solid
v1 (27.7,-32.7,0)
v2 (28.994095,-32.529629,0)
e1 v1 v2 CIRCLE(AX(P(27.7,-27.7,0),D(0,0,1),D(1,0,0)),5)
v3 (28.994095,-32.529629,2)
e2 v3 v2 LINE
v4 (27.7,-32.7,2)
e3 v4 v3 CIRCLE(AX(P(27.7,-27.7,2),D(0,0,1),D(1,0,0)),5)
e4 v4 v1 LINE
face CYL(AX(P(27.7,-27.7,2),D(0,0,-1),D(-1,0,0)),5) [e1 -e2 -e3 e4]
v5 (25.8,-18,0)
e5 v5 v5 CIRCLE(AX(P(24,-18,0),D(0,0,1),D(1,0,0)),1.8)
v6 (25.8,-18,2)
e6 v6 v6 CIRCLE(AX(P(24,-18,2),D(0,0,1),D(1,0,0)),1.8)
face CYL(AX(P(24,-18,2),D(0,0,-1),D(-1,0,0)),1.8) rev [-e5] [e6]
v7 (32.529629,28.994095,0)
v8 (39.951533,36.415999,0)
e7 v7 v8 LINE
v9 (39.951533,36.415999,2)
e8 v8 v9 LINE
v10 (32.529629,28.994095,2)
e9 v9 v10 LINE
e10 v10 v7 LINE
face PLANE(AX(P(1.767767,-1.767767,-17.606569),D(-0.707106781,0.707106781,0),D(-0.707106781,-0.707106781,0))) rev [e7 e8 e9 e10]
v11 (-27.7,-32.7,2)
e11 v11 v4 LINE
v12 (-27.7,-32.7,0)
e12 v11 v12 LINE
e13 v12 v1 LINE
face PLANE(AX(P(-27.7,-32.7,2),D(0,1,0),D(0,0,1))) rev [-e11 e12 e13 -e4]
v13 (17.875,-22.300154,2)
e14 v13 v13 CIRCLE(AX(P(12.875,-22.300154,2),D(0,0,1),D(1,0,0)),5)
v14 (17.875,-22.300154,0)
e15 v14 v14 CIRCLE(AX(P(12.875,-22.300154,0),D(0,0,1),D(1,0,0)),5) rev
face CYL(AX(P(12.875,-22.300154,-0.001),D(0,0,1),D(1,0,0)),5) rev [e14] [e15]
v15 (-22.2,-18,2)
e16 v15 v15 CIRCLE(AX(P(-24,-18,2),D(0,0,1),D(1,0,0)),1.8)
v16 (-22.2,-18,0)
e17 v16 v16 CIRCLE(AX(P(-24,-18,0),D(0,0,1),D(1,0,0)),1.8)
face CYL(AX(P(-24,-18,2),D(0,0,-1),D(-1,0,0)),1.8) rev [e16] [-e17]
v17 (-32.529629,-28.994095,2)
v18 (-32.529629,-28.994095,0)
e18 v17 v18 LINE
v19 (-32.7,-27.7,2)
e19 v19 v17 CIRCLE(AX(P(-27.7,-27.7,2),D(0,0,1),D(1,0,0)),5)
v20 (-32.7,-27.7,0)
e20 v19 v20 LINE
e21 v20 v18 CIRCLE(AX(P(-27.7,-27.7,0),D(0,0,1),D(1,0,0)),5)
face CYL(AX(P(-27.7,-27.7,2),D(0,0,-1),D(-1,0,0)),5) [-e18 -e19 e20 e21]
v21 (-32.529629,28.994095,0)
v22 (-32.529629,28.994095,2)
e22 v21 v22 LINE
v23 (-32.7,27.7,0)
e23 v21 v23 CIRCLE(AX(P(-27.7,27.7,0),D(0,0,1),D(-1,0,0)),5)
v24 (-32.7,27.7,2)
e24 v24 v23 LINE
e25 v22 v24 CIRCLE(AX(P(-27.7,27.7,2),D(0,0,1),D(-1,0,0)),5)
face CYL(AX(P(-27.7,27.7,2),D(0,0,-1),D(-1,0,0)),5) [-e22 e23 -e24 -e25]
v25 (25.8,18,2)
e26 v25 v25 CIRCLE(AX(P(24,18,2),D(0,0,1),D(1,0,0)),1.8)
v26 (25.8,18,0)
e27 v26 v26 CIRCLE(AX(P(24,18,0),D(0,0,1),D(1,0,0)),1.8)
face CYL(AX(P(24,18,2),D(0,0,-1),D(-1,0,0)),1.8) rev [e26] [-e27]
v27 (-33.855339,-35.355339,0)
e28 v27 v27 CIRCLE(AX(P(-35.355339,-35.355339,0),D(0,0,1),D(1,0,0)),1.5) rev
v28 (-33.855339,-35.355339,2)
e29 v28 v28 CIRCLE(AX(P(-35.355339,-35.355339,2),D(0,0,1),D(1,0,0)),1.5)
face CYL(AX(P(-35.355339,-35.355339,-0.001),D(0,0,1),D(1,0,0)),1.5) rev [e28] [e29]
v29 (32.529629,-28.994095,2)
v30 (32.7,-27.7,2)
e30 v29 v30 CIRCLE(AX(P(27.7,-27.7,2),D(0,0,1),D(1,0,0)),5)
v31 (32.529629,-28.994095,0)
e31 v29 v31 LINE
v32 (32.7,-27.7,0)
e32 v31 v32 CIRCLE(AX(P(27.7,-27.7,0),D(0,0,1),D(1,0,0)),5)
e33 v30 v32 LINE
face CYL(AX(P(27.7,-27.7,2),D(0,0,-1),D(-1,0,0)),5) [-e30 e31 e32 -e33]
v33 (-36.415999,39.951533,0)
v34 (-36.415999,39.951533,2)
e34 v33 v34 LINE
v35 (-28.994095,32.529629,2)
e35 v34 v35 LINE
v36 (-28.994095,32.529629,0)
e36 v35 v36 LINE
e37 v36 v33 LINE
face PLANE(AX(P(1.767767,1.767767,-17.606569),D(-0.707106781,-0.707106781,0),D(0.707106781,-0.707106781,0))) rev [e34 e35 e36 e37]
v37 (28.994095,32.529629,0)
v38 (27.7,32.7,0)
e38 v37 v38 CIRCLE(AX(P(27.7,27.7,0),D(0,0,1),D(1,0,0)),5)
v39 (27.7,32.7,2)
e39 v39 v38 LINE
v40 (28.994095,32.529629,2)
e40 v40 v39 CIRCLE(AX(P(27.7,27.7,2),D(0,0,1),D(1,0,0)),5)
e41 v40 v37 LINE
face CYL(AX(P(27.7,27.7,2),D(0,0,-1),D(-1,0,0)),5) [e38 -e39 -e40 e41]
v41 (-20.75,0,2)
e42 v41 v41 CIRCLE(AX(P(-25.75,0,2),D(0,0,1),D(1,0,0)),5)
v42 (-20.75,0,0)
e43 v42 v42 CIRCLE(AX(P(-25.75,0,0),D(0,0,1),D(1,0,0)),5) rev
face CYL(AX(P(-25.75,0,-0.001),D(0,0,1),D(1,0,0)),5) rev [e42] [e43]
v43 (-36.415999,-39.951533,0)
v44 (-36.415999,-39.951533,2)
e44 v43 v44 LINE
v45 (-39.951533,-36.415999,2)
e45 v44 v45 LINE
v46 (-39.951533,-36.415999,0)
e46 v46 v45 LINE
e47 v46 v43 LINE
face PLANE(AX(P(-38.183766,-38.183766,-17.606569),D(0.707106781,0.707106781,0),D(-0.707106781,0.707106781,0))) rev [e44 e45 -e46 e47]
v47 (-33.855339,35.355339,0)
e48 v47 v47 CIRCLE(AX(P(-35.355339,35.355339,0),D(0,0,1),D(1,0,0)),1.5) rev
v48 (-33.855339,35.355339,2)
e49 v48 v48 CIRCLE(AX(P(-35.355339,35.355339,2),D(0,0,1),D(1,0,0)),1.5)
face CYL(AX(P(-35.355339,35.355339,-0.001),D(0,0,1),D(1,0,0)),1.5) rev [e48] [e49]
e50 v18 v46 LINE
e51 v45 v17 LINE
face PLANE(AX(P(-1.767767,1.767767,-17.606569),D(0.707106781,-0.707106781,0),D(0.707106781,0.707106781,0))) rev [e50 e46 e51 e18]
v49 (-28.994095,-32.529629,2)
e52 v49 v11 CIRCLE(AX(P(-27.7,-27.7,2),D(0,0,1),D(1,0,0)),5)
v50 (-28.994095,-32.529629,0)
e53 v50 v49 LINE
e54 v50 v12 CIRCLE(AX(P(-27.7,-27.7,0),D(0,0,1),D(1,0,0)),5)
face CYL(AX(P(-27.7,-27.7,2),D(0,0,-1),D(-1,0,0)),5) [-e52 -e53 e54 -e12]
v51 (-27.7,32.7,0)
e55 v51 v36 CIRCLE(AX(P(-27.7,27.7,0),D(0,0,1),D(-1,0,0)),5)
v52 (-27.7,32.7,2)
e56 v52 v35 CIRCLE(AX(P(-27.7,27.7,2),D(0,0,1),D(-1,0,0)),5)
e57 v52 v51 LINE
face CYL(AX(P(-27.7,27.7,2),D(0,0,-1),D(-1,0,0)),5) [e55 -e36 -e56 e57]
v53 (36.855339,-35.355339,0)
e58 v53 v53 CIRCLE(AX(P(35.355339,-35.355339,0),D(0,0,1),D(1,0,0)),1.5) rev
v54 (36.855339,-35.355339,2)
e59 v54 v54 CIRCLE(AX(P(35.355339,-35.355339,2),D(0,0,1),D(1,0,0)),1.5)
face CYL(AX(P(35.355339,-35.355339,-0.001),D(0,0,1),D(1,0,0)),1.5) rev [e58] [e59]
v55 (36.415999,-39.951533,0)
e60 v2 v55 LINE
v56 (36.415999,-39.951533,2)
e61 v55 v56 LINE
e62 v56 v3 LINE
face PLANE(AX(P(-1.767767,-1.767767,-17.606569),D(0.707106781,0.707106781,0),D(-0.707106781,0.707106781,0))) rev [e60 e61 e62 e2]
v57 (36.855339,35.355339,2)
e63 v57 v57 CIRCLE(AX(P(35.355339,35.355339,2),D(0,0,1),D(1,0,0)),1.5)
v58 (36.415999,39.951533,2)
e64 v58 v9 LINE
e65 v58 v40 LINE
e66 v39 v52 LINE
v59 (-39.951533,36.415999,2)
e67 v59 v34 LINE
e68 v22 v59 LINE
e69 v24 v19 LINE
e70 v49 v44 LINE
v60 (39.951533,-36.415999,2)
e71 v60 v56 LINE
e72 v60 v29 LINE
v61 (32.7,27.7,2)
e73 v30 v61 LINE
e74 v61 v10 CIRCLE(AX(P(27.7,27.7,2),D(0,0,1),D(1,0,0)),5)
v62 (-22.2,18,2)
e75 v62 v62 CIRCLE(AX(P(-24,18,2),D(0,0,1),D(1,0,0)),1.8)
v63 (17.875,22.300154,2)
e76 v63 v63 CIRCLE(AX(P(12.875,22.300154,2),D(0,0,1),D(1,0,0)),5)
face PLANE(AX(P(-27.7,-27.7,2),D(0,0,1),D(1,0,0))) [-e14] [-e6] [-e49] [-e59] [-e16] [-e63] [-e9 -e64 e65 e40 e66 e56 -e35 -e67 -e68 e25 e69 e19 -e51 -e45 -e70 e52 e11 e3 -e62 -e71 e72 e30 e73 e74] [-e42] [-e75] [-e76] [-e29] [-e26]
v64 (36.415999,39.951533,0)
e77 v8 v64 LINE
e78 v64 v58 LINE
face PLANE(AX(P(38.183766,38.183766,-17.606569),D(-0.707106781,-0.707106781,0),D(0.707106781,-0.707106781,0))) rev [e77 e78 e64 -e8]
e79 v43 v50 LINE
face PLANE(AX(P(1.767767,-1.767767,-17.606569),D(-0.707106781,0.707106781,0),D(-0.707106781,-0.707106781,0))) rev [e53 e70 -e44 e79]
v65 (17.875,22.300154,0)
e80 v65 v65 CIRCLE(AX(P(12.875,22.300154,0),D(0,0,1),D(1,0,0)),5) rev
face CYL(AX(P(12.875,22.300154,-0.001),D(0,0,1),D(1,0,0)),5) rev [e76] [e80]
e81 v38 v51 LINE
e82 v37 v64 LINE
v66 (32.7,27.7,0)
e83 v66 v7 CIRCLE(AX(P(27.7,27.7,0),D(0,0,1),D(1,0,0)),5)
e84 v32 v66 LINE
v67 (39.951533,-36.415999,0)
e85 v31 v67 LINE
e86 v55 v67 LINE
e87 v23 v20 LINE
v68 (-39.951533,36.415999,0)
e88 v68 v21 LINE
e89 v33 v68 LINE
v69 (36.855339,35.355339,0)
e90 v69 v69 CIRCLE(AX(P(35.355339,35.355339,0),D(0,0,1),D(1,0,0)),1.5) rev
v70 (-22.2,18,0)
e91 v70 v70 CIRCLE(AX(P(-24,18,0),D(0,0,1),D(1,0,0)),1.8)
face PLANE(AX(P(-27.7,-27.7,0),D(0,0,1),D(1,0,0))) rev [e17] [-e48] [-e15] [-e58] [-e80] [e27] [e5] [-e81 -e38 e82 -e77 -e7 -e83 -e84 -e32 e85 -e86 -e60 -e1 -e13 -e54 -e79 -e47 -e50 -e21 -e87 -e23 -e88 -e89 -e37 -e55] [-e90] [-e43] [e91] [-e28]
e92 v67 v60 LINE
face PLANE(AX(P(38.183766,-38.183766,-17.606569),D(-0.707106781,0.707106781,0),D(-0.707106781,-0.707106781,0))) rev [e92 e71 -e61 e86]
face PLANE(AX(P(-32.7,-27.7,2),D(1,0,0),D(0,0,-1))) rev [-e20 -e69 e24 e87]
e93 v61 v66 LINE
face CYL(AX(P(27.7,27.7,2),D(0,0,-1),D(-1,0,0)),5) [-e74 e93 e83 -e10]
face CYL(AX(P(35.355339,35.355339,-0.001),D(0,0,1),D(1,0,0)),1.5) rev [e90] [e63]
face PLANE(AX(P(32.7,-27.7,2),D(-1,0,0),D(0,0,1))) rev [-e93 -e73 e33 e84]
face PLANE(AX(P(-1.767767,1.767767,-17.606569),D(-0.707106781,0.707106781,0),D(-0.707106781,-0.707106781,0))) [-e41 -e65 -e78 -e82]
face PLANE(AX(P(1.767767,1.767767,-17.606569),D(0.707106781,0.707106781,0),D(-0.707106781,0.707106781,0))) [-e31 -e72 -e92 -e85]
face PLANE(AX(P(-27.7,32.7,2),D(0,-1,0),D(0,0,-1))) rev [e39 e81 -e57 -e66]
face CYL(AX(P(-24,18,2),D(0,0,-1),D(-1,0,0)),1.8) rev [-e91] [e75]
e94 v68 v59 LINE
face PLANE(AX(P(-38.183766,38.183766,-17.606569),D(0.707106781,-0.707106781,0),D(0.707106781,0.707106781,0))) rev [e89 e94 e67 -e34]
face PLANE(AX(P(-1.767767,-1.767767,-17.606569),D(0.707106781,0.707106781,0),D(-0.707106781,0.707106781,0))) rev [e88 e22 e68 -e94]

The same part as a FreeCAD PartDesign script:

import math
import FreeCAD as App
import Part
import Sketcher
Q = App.Units.Quantity


def add_polygon(sketch, points):
    """Adds a closed chain of lines whose ends are joined by coincident constraints."""
    first, n = sketch.GeometryCount, len(points)
    for a, b in zip(points, points[1:] + points[:1]):
        sketch.addGeometry(Part.LineSegment(App.Vector(*a, 0), App.Vector(*b, 0)), False)
    for i in range(n):
        sketch.addConstraint(Sketcher.Constraint("Coincident", first + i, 2, first + (i + 1) % n, 1))

doc = App.newDocument("Part")
body = doc.addObject("PartDesign::Body", "Body")

# Sketch on XY plane
sketch1 = body.newObject("Sketcher::SketchObject", "Sketch")
sketch1.AttachmentSupport = (doc.getObject("XY_Plane"), [""])
sketch1.MapMode = "FlatFace"
sketch1.addGeometry([
    Part.LineSegment(App.Vector(-27.7, -32.7, 0), App.Vector(27.7, -32.7, 0)),  # 0
    Part.ArcOfCircle(Part.Circle(App.Vector(27.7, -27.7, 0), App.Vector(0, 0, 1), 5), math.radians(-90), math.radians(0)),  # 1
    Part.LineSegment(App.Vector(32.7, -27.7, 0), App.Vector(32.7, 27.7, 0)),  # 2
    Part.ArcOfCircle(Part.Circle(App.Vector(27.7, 27.7, 0), App.Vector(0, 0, 1), 5), math.radians(0), math.radians(90)),  # 3
    Part.LineSegment(App.Vector(27.7, 32.7, 0), App.Vector(-27.7, 32.7, 0)),  # 4
    Part.ArcOfCircle(Part.Circle(App.Vector(-27.7, 27.7, 0), App.Vector(0, 0, 1), 5), math.radians(90), math.radians(180)),  # 5
    Part.LineSegment(App.Vector(-32.7, 27.7, 0), App.Vector(-32.7, -27.7, 0)),  # 6
    Part.ArcOfCircle(Part.Circle(App.Vector(-27.7, -27.7, 0), App.Vector(0, 0, 1), 5), math.radians(180), math.radians(270)),  # 7
    Part.Circle(App.Vector(-24, -18, 0), App.Vector(0, 0, 1), 1.8),  # 8
    Part.Circle(App.Vector(24, -18, 0), App.Vector(0, 0, 1), 1.8),  # 9
    Part.Circle(App.Vector(-24, 18, 0), App.Vector(0, 0, 1), 1.8),  # 10
    Part.Circle(App.Vector(24, 18, 0), App.Vector(0, 0, 1), 1.8),  # 11
], False)
sketch1.addConstraint([
    Sketcher.Constraint("Tangent", 0, 2, 1, 1),
    Sketcher.Constraint("Tangent", 1, 2, 2, 1),
    Sketcher.Constraint("Tangent", 2, 2, 3, 1),
    Sketcher.Constraint("Tangent", 3, 2, 4, 1),
    Sketcher.Constraint("Tangent", 4, 2, 5, 1),
    Sketcher.Constraint("Tangent", 5, 2, 6, 1),
    Sketcher.Constraint("Tangent", 6, 2, 7, 1),
    Sketcher.Constraint("Tangent", 7, 2, 0, 1),
    Sketcher.Constraint("Horizontal", 0),
    Sketcher.Constraint("Vertical", 2),
    Sketcher.Constraint("Horizontal", 4),
    Sketcher.Constraint("Vertical", 6),
    Sketcher.Constraint("Equal", 1, 3),
    Sketcher.Constraint("Equal", 3, 5),
    Sketcher.Constraint("Equal", 5, 7),
    Sketcher.Constraint("Equal", 8, 9),
    Sketcher.Constraint("Equal", 9, 10),
    Sketcher.Constraint("Equal", 10, 11),
    Sketcher.Constraint("Symmetric", 1, 3, 5, 3, -1, 1),
    Sketcher.Constraint("Symmetric", 9, 3, 10, 3, -1, 1),
    Sketcher.Constraint("Symmetric", 8, 3, 11, 3, -1, 1),
    Sketcher.Constraint("Symmetric", 8, 3, 9, 3, -2),
    Sketcher.Constraint("Equal", 4, 2),
    Sketcher.Constraint("Radius", 1, Q("5 mm")),
    Sketcher.Constraint("Diameter", 8, Q("3.6 mm")),
    Sketcher.Constraint("DistanceX", 0, 1, 0, 2, Q("55.4 mm")),
    Sketcher.Constraint("DistanceX", 8, 3, -1, 1, Q("24 mm")),
    Sketcher.Constraint("DistanceY", 8, 3, -1, 1, Q("18 mm")),
])
pad1 = body.newObject("PartDesign::Pad", "Pad")
pad1.Profile = sketch1
pad1.Length = 2

# Sketch on XY plane
sketch2 = body.newObject("Sketcher::SketchObject", "Sketch001")
sketch2.AttachmentSupport = (doc.getObject("XY_Plane"), [""])
sketch2.MapMode = "FlatFace"
add_polygon(sketch2, [(-39.951533, 36.415999), (-33.003301, 29.467767), (-32.529629, 28.994095), (-31.037343, 27.501809), (-27.501809, 31.037343), (-28.994095, 32.529629), (-29.467767, 33.003301), (-36.415999, 39.951533)])  # lines 0-7
add_polygon(sketch2, [(28.994095, 32.529629), (27.501809, 31.037343), (31.037343, 27.501809), (32.529629, 28.994095), (33.003301, 29.467767), (39.951533, 36.415999), (36.415999, 39.951533), (29.467767, 33.003301)])  # lines 8-15
add_polygon(sketch2, [(27.501809, -31.037343), (28.994095, -32.529629), (29.467767, -33.003301), (36.415999, -39.951533), (39.951533, -36.415999), (33.003301, -29.467767), (32.529629, -28.994095), (31.037343, -27.501809)])  # lines 16-23
add_polygon(sketch2, [(-32.529629, -28.994095), (-33.003301, -29.467767), (-39.951533, -36.415999), (-36.415999, -39.951533), (-29.467767, -33.003301), (-28.994095, -32.529629), (-27.501809, -31.037343), (-31.037343, -27.501809)])  # lines 24-31
sketch2.addConstraint([
    Sketcher.Constraint("Symmetric", 4, 2, 16, 2, -1, 1),
    Sketcher.Constraint("Symmetric", 5, 2, 17, 2, -1, 1),
    Sketcher.Constraint("Symmetric", 6, 2, 18, 2, -1, 1),
    Sketcher.Constraint("Symmetric", 7, 2, 19, 2, -1, 1),
    Sketcher.Constraint("Symmetric", 0, 2, 20, 2, -1, 1),
    Sketcher.Constraint("Symmetric", 1, 2, 21, 2, -1, 1),
    Sketcher.Constraint("Symmetric", 2, 2, 22, 2, -1, 1),
    Sketcher.Constraint("Symmetric", 3, 2, 23, 2, -1, 1),
    Sketcher.Constraint("Symmetric", 11, 2, 24, 2, -1, 1),
    Sketcher.Constraint("Symmetric", 12, 2, 25, 2, -1, 1),
    Sketcher.Constraint("Symmetric", 13, 2, 26, 2, -1, 1),
    Sketcher.Constraint("Symmetric", 14, 2, 27, 2, -1, 1),
    Sketcher.Constraint("Symmetric", 15, 2, 28, 2, -1, 1),
    Sketcher.Constraint("Symmetric", 8, 2, 29, 2, -1, 1),
    Sketcher.Constraint("Symmetric", 9, 2, 30, 2, -1, 1),
    Sketcher.Constraint("Symmetric", 10, 2, 31, 2, -1, 1),
    Sketcher.Constraint("Symmetric", 3, 2, 8, 2, -2),
    Sketcher.Constraint("Symmetric", 2, 2, 9, 2, -2),
    Sketcher.Constraint("Symmetric", 1, 2, 10, 2, -2),
    Sketcher.Constraint("Symmetric", 0, 2, 11, 2, -2),
    Sketcher.Constraint("Symmetric", 7, 2, 12, 2, -2),
    Sketcher.Constraint("Symmetric", 6, 2, 13, 2, -2),
    Sketcher.Constraint("Symmetric", 5, 2, 14, 2, -2),
    Sketcher.Constraint("Symmetric", 4, 2, 15, 2, -2),
    Sketcher.Constraint("Parallel", 0, 1),
    Sketcher.Constraint("Parallel", 1, 2),
    Sketcher.Constraint("Perpendicular", 2, 3),
    Sketcher.Constraint("Perpendicular", 3, 4),
    Sketcher.Constraint("Parallel", 4, 5),
    Sketcher.Constraint("Parallel", 5, 6),
    Sketcher.Constraint("Perpendicular", 6, 7),
    Sketcher.Constraint("Parallel", 7, 8),
    Sketcher.Constraint("Equal", 2, 4),
    Sketcher.Constraint("Equal", 1, 5),
    Sketcher.Constraint("Distance", 3, Q("5 mm")),
    Sketcher.Constraint("DistanceX", 6, 2, -1, 1, Q("36.415999 mm")),
    Sketcher.Constraint("DistanceY", -1, 1, 7, 2, Q("36.415999 mm")),
    Sketcher.Constraint("DistanceX", 0, 2, -1, 1, Q("33.003301 mm")),
    Sketcher.Constraint("Distance", 2, Q("2.110412 mm")),
    Sketcher.Constraint("DistanceX", 1, 2, -1, 1, Q("32.529629 mm")),
])
pad2 = body.newObject("PartDesign::Pad", "Pad001")
pad2.Profile = sketch2
pad2.Length = 2

# Sketch on XY plane
sketch3 = body.newObject("Sketcher::SketchObject", "Sketch002")
sketch3.AttachmentSupport = (doc.getObject("XY_Plane"), [""])
sketch3.MapMode = "FlatFace"
sketch3.AttachmentOffset = App.Placement(App.Vector(0, 0, 2), App.Rotation())
sketch3.addGeometry(Part.Circle(App.Vector(-35.355339, 35.355339, 0), App.Vector(0, 0, 1), 1.5), False)
sketch3.addConstraint([
    Sketcher.Constraint("Diameter", 0, Q("3 mm")),
    Sketcher.Constraint("DistanceX", 0, 3, -1, 1, Q("35.355339 mm")),
    Sketcher.Constraint("DistanceY", -1, 1, 0, 3, Q("35.355339 mm")),
])
pocket1 = body.newObject("PartDesign::Pocket", "Pocket")
pocket1.Profile = sketch3
pocket1.Type = "UpToFirst"

# Sketch on XY plane
sketch4 = body.newObject("Sketcher::SketchObject", "Sketch003")
sketch4.AttachmentSupport = (doc.getObject("XY_Plane"), [""])
sketch4.MapMode = "FlatFace"
sketch4.AttachmentOffset = App.Placement(App.Vector(0, 0, 2), App.Rotation())
sketch4.addGeometry(Part.Circle(App.Vector(35.355339, 35.355339, 0), App.Vector(0, 0, 1), 1.5), False)
sketch4.addConstraint([
    Sketcher.Constraint("Diameter", 0, Q("3 mm")),
    Sketcher.Constraint("DistanceX", -1, 1, 0, 3, Q("35.355339 mm")),
    Sketcher.Constraint("DistanceY", -1, 1, 0, 3, Q("35.355339 mm")),
])
pocket2 = body.newObject("PartDesign::Pocket", "Pocket001")
pocket2.Profile = sketch4
pocket2.Type = "UpToFirst"

# Sketch on XY plane
sketch5 = body.newObject("Sketcher::SketchObject", "Sketch004")
sketch5.AttachmentSupport = (doc.getObject("XY_Plane"), [""])
sketch5.MapMode = "FlatFace"
sketch5.AttachmentOffset = App.Placement(App.Vector(0, 0, 2), App.Rotation())
sketch5.addGeometry(Part.Circle(App.Vector(35.355339, -35.355339, 0), App.Vector(0, 0, 1), 1.5), False)
sketch5.addConstraint([
    Sketcher.Constraint("Diameter", 0, Q("3 mm")),
    Sketcher.Constraint("DistanceX", -1, 1, 0, 3, Q("35.355339 mm")),
    Sketcher.Constraint("DistanceY", 0, 3, -1, 1, Q("35.355339 mm")),
])
pocket3 = body.newObject("PartDesign::Pocket", "Pocket002")
pocket3.Profile = sketch5
pocket3.Type = "UpToFirst"

# Sketch on XY plane
sketch6 = body.newObject("Sketcher::SketchObject", "Sketch005")
sketch6.AttachmentSupport = (doc.getObject("XY_Plane"), [""])
sketch6.MapMode = "FlatFace"
sketch6.AttachmentOffset = App.Placement(App.Vector(0, 0, 2), App.Rotation())
sketch6.addGeometry(Part.Circle(App.Vector(-35.355339, -35.355339, 0), App.Vector(0, 0, 1), 1.5), False)
sketch6.addConstraint([
    Sketcher.Constraint("Diameter", 0, Q("3 mm")),
    Sketcher.Constraint("DistanceX", 0, 3, -1, 1, Q("35.355339 mm")),
    Sketcher.Constraint("DistanceY", 0, 3, -1, 1, Q("35.355339 mm")),
])
pocket4 = body.newObject("PartDesign::Pocket", "Pocket003")
pocket4.Profile = sketch6
pocket4.Type = "UpToFirst"

# Sketch on XY plane
sketch7 = body.newObject("Sketcher::SketchObject", "Sketch006")
sketch7.AttachmentSupport = (doc.getObject("XY_Plane"), [""])
sketch7.MapMode = "FlatFace"
sketch7.AttachmentOffset = App.Placement(App.Vector(0, 0, 2), App.Rotation())
sketch7.addGeometry(Part.Circle(App.Vector(-25.75, 0, 0), App.Vector(0, 0, 1), 5), False)
sketch7.addConstraint([
    Sketcher.Constraint("PointOnObject", 0, 3, -1),
    Sketcher.Constraint("Diameter", 0, Q("10 mm")),
    Sketcher.Constraint("DistanceX", 0, 3, -1, 1, Q("25.75 mm")),
])
pocket5 = body.newObject("PartDesign::Pocket", "Pocket004")
pocket5.Profile = sketch7
pocket5.Type = "UpToFirst"

# Sketch on XY plane
sketch8 = body.newObject("Sketcher::SketchObject", "Sketch007")
sketch8.AttachmentSupport = (doc.getObject("XY_Plane"), [""])
sketch8.MapMode = "FlatFace"
sketch8.AttachmentOffset = App.Placement(App.Vector(0, 0, 2), App.Rotation())
sketch8.addGeometry(Part.Circle(App.Vector(12.875, 22.300154, 0), App.Vector(0, 0, 1), 5), False)
sketch8.addConstraint([
    Sketcher.Constraint("Diameter", 0, Q("10 mm")),
    Sketcher.Constraint("DistanceX", -1, 1, 0, 3, Q("12.875 mm")),
    Sketcher.Constraint("DistanceY", -1, 1, 0, 3, Q("22.300154 mm")),
])
pocket6 = body.newObject("PartDesign::Pocket", "Pocket005")
pocket6.Profile = sketch8
pocket6.Type = "UpToFirst"

# Sketch on XY plane
sketch9 = body.newObject("Sketcher::SketchObject", "Sketch008")
sketch9.AttachmentSupport = (doc.getObject("XY_Plane"), [""])
sketch9.MapMode = "FlatFace"
sketch9.AttachmentOffset = App.Placement(App.Vector(0, 0, 2), App.Rotation())
sketch9.addGeometry(Part.Circle(App.Vector(12.875, -22.300154, 0), App.Vector(0, 0, 1), 5), False)
sketch9.addConstraint([
    Sketcher.Constraint("Diameter", 0, Q("10 mm")),
    Sketcher.Constraint("DistanceX", -1, 1, 0, 3, Q("12.875 mm")),
    Sketcher.Constraint("DistanceY", 0, 3, -1, 1, Q("22.300154 mm")),
])
pocket7 = body.newObject("PartDesign::Pocket", "Pocket006")
pocket7.Profile = sketch9
pocket7.Type = "UpToFirst"

doc.recompute()
